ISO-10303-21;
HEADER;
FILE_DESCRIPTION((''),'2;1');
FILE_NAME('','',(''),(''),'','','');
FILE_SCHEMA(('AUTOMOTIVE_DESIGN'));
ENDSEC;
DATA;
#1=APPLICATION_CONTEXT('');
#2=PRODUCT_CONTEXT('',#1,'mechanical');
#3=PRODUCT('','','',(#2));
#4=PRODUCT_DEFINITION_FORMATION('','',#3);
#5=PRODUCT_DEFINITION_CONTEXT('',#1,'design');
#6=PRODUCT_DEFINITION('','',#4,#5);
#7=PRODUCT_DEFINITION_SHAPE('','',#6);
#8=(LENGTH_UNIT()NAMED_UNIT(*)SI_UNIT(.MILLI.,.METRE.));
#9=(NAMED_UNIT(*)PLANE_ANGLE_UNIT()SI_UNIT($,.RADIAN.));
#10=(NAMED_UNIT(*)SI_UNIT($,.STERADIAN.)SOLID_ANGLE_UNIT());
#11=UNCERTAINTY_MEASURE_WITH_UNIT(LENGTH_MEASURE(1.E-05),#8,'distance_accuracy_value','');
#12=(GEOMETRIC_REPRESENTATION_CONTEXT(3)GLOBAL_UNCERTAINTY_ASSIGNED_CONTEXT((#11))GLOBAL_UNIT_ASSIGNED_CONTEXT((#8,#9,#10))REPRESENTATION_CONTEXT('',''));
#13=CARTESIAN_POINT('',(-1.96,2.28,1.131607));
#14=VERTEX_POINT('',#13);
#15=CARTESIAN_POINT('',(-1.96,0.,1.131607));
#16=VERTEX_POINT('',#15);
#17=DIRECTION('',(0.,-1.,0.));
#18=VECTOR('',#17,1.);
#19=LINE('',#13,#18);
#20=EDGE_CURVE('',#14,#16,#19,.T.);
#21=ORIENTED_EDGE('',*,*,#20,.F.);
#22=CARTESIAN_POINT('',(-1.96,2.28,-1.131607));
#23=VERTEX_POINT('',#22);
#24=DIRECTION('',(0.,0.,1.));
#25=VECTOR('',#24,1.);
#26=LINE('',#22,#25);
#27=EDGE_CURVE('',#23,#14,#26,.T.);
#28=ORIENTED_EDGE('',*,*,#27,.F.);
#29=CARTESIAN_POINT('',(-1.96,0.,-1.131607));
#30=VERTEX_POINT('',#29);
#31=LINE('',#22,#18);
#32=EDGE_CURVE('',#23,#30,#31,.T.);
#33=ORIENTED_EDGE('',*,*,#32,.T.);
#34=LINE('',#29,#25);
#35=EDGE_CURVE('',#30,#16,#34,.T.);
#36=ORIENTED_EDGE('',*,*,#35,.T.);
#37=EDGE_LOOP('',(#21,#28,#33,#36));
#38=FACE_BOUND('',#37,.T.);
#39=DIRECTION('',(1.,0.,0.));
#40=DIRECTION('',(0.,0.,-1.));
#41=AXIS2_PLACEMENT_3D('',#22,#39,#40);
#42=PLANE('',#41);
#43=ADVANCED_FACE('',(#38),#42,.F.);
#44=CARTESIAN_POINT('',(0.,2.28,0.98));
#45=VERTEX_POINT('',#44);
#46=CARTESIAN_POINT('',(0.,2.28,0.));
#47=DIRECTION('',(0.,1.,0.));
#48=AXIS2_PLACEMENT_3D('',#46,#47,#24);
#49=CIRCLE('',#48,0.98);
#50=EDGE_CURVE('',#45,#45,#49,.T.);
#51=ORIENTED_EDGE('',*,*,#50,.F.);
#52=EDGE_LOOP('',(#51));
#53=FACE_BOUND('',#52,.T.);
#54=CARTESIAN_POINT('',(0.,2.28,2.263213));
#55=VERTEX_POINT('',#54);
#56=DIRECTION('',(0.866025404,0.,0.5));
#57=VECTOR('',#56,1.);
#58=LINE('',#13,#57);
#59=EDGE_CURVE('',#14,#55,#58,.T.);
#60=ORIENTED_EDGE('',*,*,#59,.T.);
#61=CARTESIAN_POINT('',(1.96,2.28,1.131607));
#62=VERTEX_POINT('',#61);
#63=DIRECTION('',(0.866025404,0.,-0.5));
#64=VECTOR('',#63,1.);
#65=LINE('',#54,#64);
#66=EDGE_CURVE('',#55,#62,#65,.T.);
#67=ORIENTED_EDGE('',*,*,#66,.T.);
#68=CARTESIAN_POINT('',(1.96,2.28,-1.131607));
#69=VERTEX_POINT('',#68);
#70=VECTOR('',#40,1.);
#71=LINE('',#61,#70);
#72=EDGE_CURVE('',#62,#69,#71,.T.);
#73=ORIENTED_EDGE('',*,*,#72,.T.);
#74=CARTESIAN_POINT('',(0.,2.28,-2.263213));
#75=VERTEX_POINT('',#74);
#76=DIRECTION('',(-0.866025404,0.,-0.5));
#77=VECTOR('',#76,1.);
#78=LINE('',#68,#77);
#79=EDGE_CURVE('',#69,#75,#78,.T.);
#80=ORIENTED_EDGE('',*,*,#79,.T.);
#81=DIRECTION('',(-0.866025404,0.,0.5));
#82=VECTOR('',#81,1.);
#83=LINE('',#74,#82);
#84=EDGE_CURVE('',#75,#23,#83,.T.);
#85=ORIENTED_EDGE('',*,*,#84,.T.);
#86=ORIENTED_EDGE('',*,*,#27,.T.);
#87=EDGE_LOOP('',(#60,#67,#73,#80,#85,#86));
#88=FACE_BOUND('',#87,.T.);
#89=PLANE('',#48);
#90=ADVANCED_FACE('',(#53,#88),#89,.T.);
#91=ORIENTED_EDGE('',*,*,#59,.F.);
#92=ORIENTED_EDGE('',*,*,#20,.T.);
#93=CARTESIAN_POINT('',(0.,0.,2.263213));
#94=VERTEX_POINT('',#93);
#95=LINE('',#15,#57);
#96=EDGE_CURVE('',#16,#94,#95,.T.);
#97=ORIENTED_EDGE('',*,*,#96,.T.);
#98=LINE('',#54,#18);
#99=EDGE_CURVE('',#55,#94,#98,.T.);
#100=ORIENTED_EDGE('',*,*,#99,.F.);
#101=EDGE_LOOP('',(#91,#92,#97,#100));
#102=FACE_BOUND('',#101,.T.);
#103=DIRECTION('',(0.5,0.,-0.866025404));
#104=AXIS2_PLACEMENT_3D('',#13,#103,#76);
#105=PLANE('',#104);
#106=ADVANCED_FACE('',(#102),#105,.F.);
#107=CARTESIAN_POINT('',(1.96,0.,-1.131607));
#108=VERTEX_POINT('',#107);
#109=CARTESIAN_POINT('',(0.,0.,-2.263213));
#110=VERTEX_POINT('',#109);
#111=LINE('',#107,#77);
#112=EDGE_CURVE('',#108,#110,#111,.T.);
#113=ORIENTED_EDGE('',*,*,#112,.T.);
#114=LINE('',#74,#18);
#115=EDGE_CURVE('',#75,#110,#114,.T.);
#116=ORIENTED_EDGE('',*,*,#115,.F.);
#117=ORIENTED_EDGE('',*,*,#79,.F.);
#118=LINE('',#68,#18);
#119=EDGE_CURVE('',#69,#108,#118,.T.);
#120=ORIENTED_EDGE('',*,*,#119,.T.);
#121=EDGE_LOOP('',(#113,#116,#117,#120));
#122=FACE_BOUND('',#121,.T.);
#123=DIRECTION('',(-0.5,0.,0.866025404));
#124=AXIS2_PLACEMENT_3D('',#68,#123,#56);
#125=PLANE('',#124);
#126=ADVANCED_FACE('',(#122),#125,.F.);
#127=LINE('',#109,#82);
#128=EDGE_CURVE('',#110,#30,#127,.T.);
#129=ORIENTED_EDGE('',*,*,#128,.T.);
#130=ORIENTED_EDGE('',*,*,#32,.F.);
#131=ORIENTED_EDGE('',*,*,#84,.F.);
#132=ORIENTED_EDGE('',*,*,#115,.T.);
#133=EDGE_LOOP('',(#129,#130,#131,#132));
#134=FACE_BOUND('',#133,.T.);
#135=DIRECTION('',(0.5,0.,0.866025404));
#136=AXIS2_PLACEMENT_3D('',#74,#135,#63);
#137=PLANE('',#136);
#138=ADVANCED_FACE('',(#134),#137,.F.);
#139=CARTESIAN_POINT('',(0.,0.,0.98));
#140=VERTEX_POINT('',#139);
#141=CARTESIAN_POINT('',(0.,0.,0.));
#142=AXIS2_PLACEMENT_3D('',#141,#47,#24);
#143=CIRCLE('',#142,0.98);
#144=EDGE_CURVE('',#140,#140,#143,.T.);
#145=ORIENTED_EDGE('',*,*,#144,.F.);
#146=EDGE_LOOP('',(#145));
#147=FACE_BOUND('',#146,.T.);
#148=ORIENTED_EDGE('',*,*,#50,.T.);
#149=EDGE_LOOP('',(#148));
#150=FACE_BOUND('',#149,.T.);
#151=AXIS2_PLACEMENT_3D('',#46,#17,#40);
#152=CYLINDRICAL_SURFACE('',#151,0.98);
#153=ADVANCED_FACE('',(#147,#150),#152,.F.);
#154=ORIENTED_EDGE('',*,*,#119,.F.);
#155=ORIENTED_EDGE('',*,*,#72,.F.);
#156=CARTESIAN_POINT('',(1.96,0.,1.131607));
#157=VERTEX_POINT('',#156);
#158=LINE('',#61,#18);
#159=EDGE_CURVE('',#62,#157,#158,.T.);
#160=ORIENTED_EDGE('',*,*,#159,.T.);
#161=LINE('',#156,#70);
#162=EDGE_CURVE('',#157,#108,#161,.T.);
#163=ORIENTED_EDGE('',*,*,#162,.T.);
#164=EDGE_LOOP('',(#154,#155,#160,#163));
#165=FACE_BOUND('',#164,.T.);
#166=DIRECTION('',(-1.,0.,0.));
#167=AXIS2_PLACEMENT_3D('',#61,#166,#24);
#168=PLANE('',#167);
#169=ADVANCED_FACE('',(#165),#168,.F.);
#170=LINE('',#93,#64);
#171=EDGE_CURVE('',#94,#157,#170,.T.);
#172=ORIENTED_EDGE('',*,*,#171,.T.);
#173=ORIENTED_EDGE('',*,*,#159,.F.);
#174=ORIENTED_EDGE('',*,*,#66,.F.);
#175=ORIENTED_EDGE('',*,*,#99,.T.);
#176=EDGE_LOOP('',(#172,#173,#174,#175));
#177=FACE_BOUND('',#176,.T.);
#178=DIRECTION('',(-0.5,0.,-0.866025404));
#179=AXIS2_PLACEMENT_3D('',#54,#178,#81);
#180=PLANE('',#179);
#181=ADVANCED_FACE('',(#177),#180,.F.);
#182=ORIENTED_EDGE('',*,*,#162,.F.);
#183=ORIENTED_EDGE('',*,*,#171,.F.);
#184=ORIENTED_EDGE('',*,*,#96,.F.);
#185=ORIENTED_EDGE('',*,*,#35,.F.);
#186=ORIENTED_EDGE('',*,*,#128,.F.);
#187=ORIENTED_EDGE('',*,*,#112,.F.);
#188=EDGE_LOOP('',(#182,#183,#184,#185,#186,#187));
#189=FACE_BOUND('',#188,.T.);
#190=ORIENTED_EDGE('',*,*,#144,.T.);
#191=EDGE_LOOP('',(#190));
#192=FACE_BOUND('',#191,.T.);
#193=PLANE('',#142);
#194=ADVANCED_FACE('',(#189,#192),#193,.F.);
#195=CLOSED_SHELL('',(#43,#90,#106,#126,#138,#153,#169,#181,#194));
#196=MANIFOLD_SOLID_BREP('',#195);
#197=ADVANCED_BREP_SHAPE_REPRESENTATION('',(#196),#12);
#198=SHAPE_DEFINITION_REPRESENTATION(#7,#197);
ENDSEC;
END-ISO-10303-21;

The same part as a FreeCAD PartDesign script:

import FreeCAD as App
import Part
import Sketcher
Q = App.Units.Quantity

doc = App.newDocument("Part")
body = doc.addObject("PartDesign::Body", "Body")

# Sketch on XZ plane
sketch1 = body.newObject("Sketcher::SketchObject", "Sketch")
sketch1.AttachmentSupport = (doc.getObject("XZ_Plane"), [""])
sketch1.MapMode = "FlatFace"
sketch1.addGeometry(Part.LineSegment(App.Vector(0, 2.3, 0), App.Vector(2, 1.1, 0)), False)
sketch1.addGeometry(Part.LineSegment(App.Vector(2, 1.1, 0), App.Vector(2, -1.1, 0)), False)
sketch1.addGeometry(Part.LineSegment(App.Vector(2, -1.1, 0), App.Vector(0, -2.3, 0)), False)
sketch1.addGeometry(Part.LineSegment(App.Vector(0, -2.3, 0), App.Vector(-2, -1.1, 0)), False)
sketch1.addGeometry(Part.LineSegment(App.Vector(-2, -1.1, 0), App.Vector(-2, 1.1, 0)), False)
sketch1.addGeometry(Part.LineSegment(App.Vector(-2, 1.1, 0), App.Vector(0, 2.3, 0)), False)
sketch1.addGeometry(Part.Circle(App.Vector(0, 0, 0), App.Vector(0, 0, 1), 1), False)
sketch1.addConstraint(Sketcher.Constraint("Coincident", 0, 2, 1, 1))
sketch1.addConstraint(Sketcher.Constraint("Coincident", 1, 2, 2, 1))
sketch1.addConstraint(Sketcher.Constraint("Coincident", 2, 2, 3, 1))
sketch1.addConstraint(Sketcher.Constraint("Coincident", 3, 2, 4, 1))
sketch1.addConstraint(Sketcher.Constraint("Coincident", 4, 2, 5, 1))
sketch1.addConstraint(Sketcher.Constraint("Coincident", 5, 2, 0, 1))
sketch1.addConstraint(Sketcher.Constraint("Vertical", 1))
sketch1.addConstraint(Sketcher.Constraint("Vertical", 4))
sketch1.addConstraint(Sketcher.Constraint("Coincident", 6, 3, -1, 1))
sketch1.addConstraint(Sketcher.Constraint("Symmetric", 0, 2, 3, 2, -1, 1))
sketch1.addConstraint(Sketcher.Constraint("Symmetric", 2, 2, 5, 2, -1, 1))
sketch1.addConstraint(Sketcher.Constraint("PointOnObject", 2, 2, -2))
sketch1.addConstraint(Sketcher.Constraint("Parallel", 2, 5))
sketch1.addConstraint(Sketcher.Constraint("Horizontal", 1, 2, 3, 2))
sketch1.addConstraint(Sketcher.Constraint("Diameter", 6, Q("1.96 mm")))
sketch1.addConstraint(Sketcher.Constraint("Angle", 0, Q("-30 deg")))
sketch1.addConstraint(Sketcher.Constraint("DistanceX", -1, 1, 0, 2, Q("1.96 mm")))
sketch1.addConstraint(Sketcher.Constraint("DistanceY", 1, 2, 1, 1, Q("2.263213 mm")))
pad1 = body.newObject("PartDesign::Pad", "Pad")
pad1.Profile = sketch1
pad1.Length = 2.28
pad1.Reversed = True

doc.recompute()
